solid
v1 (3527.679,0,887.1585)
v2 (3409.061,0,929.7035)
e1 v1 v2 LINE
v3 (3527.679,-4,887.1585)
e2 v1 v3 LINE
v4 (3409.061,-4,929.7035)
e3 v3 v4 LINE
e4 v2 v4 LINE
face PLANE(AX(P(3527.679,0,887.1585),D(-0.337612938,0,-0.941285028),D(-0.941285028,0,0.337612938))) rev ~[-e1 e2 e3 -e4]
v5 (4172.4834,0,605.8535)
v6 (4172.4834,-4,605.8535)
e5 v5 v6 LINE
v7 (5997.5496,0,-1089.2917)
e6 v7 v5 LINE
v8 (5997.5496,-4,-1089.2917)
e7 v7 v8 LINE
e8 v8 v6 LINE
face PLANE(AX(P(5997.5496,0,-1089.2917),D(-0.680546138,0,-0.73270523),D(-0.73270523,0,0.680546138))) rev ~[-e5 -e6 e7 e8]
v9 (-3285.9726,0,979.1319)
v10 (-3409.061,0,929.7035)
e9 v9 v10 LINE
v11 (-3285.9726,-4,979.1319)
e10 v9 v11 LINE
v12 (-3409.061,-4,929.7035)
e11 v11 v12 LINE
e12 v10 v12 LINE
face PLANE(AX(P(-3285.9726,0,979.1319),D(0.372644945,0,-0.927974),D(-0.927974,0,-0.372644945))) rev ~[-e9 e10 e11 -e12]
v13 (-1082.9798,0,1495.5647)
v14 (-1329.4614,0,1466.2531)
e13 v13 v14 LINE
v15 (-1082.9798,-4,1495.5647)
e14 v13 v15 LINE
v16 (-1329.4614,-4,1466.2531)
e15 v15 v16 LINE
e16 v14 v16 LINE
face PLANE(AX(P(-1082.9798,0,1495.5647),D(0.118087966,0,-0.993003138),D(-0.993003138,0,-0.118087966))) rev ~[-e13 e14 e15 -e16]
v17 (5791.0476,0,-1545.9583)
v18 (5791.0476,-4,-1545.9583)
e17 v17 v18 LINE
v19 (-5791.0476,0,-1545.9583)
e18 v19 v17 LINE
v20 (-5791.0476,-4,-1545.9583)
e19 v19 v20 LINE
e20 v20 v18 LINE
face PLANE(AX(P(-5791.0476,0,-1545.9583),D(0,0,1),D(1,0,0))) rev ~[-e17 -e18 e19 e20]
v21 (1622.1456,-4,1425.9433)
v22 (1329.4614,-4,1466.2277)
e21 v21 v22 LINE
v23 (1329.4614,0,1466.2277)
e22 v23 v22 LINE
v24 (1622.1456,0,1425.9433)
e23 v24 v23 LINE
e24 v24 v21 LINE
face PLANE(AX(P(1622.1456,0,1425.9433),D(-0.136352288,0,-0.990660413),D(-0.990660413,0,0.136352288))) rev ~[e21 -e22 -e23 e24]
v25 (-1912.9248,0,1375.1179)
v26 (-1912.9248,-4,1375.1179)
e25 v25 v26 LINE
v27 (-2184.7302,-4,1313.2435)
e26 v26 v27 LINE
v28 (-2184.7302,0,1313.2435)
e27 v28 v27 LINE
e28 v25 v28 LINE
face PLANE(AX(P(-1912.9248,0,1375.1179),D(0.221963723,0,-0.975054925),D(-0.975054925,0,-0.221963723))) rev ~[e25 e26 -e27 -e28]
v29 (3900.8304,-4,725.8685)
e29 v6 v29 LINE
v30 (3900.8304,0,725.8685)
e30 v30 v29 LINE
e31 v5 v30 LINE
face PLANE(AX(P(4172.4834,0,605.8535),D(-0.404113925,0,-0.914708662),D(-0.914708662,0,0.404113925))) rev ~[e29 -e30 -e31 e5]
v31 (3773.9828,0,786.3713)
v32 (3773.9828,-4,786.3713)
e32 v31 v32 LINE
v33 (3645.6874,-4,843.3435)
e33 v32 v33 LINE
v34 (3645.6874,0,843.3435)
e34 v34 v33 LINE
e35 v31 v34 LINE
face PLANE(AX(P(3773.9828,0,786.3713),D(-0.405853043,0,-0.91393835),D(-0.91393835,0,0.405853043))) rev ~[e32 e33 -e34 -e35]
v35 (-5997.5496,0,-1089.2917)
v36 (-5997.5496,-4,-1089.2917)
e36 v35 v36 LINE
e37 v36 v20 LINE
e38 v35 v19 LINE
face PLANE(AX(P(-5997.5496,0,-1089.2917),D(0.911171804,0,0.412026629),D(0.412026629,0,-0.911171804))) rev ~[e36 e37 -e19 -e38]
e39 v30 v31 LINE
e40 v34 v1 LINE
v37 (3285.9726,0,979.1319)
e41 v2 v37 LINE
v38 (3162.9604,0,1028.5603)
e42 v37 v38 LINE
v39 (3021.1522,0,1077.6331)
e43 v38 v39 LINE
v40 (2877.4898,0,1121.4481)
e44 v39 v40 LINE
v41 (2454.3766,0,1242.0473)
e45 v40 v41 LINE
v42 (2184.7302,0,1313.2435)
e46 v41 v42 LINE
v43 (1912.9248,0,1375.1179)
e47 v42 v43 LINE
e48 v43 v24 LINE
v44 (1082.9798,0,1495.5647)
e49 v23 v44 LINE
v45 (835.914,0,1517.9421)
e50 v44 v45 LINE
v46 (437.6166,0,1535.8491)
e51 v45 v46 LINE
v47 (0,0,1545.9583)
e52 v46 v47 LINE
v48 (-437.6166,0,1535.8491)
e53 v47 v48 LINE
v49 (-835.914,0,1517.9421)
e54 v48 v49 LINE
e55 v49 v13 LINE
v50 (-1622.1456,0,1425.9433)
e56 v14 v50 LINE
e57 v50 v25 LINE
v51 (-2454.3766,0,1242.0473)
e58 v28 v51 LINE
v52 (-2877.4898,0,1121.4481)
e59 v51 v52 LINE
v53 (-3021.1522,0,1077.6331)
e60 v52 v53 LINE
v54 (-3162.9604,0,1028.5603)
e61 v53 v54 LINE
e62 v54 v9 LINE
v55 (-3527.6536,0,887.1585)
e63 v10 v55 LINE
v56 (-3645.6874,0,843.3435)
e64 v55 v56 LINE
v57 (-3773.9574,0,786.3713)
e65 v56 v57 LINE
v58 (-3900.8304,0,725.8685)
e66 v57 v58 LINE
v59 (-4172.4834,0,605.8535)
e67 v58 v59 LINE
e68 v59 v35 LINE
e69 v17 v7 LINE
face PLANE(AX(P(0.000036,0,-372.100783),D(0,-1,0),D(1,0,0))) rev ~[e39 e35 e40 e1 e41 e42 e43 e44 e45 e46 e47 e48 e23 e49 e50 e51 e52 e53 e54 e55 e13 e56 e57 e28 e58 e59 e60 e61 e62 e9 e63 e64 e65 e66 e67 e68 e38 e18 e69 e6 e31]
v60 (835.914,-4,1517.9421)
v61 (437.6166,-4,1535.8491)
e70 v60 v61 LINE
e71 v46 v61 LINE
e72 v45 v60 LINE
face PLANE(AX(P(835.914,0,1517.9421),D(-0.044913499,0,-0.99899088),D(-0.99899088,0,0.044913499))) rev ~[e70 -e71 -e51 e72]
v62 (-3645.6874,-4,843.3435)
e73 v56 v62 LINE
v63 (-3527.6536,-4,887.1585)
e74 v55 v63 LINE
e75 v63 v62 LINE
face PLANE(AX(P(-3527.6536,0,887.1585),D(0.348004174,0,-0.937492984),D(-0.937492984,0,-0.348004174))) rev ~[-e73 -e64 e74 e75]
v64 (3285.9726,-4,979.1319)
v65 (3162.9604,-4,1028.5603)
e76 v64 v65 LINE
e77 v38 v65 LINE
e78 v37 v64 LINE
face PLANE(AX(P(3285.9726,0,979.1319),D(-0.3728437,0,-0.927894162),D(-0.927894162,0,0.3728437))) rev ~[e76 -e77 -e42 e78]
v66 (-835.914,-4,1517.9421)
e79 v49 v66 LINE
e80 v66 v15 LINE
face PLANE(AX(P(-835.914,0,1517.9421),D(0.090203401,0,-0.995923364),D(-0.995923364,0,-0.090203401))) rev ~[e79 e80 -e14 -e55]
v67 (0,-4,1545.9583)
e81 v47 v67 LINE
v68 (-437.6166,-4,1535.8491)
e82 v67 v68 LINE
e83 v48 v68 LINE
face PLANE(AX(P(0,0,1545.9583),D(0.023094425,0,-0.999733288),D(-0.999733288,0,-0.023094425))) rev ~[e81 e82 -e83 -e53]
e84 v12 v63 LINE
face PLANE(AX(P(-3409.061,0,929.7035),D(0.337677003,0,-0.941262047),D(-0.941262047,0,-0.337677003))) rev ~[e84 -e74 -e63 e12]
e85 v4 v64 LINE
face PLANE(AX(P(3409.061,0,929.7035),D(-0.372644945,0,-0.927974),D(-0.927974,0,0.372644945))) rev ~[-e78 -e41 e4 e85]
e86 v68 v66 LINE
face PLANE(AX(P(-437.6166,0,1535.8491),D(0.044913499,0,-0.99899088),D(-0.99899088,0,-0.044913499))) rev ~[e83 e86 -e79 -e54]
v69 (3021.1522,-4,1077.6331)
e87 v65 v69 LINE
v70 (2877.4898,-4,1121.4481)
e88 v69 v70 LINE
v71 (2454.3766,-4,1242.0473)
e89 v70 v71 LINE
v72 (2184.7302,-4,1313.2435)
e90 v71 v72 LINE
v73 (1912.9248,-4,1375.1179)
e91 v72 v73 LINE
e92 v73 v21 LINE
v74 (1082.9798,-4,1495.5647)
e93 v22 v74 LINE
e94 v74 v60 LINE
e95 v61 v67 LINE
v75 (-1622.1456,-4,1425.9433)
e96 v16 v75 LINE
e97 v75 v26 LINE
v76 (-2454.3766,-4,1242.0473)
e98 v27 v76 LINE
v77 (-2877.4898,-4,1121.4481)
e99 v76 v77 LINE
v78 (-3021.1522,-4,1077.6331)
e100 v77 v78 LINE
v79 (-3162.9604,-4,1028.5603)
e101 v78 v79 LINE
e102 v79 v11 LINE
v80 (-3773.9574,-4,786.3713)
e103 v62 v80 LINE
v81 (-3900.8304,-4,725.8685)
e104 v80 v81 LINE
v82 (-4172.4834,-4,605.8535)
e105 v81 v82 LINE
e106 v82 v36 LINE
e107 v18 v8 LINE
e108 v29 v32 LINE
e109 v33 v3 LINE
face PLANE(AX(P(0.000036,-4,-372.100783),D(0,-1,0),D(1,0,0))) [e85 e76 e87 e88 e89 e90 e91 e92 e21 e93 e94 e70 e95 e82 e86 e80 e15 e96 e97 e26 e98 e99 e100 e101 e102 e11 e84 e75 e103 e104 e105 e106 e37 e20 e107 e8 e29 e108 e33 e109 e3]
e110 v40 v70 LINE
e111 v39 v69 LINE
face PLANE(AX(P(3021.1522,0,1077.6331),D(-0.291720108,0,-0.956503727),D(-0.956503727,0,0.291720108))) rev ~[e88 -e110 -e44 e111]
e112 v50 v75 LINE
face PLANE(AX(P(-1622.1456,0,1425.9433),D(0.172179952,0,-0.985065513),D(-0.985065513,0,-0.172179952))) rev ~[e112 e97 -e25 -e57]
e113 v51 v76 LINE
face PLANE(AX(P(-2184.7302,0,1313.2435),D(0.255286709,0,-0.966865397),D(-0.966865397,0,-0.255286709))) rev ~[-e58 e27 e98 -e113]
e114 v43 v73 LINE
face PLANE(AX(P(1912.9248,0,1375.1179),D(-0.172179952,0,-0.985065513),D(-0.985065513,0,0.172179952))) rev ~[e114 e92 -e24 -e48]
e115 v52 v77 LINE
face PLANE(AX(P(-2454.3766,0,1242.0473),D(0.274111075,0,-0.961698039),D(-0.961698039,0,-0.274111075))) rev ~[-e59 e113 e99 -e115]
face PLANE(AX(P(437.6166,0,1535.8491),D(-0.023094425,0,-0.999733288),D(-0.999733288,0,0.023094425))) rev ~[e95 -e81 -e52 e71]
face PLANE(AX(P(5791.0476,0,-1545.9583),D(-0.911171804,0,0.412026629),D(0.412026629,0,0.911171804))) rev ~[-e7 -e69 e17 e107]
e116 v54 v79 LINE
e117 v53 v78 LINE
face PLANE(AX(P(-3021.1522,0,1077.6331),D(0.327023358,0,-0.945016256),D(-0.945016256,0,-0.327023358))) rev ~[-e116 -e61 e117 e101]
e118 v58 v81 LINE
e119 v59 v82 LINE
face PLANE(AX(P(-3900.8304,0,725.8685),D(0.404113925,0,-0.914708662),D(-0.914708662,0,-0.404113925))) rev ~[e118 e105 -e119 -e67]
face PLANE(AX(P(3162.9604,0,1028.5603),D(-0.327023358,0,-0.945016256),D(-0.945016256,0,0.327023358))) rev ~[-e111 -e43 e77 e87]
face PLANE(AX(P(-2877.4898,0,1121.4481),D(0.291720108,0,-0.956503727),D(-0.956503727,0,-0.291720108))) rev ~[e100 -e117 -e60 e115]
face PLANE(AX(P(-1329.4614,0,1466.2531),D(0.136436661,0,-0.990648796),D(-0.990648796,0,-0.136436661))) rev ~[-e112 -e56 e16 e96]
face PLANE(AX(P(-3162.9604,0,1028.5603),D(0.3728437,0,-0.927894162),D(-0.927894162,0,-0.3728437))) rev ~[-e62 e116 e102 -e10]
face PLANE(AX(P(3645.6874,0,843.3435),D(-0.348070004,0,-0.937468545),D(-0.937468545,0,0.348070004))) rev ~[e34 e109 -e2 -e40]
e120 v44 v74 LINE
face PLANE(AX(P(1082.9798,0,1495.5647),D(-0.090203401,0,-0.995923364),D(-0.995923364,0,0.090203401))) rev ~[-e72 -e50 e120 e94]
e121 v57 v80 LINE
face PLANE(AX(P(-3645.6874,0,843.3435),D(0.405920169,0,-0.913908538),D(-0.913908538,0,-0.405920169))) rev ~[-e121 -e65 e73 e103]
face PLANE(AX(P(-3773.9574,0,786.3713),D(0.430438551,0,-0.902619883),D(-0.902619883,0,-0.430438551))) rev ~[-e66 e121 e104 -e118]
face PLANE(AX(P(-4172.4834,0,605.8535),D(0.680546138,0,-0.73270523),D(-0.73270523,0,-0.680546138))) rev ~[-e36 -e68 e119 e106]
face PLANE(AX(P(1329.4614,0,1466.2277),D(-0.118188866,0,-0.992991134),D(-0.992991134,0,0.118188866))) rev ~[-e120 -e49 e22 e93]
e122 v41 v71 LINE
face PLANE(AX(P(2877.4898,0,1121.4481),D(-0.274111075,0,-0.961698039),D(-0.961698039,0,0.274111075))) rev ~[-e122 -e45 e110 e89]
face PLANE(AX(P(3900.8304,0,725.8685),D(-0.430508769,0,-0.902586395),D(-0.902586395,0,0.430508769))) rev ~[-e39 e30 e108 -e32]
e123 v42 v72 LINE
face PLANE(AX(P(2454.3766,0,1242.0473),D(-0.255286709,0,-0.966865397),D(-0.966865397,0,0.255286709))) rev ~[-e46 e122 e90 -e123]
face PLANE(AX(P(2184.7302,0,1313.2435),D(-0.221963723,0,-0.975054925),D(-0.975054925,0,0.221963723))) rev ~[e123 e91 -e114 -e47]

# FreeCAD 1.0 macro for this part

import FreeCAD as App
import Part
import Sketcher


def add_polygon(sketch, points):
    """Adds a closed chain of lines whose ends are joined by coincident constraints."""
    first, n = sketch.GeometryCount, len(points)
    for a, b in zip(points, points[1:] + points[:1]):
        sketch.addGeometry(Part.LineSegment(App.Vector(*a, 0), App.Vector(*b, 0)), False)
    for i in range(n):
        sketch.addConstraint(Sketcher.Constraint("Coincident", first + i, 2, first + (i + 1) % n, 1))

doc = App.newDocument("Part")
body = doc.addObject("PartDesign::Body", "Body")

# Sketch on XZ plane
sketch1 = doc.addObject("Sketcher::SketchObject", "Sketch")
body.addObject(sketch1)
sketch1.AttachmentSupport = (doc.XZ_Plane, [""])
sketch1.MapMode = "FlatFace"
add_polygon(sketch1, [(438, 1536), (0, 1546), (-438, 1536), (-836, 1518), (-1083, 1496), (-1329, 1466), (-1622, 1426), (-1913, 1375), (-2185, 1313), (-2454, 1242), (-2877, 1121), (-3021, 1078), (-3163, 1029), (-3286, 979), (-3409, 930), (-3528, 887), (-3646, 843), (-3774, 786), (-3901, 726), (-4172, 606), (-5998, -1089), (-5791, -1546), (5791, -1546), (5998, -1089), (4172, 606), (3901, 726), (3774, 786), (3646, 843), (3528, 887), (3409, 930), (3286, 979), (3163, 1029), (3021, 1078), (2877, 1121), (2454, 1242), (2185, 1313), (1913, 1375), (1622, 1426), (1329, 1466), (1083, 1496), (836, 1518)])  # lines 0-40
sketch1.addConstraint(Sketcher.Constraint("Horizontal", 21))
sketch1.addConstraint(Sketcher.Constraint("Symmetric", 19, 2, 22, 2, -2))
sketch1.addConstraint(Sketcher.Constraint("Symmetric", 18, 2, 23, 2, -2))
sketch1.addConstraint(Sketcher.Constraint("Symmetric", 17, 2, 24, 2, -2))
sketch1.addConstraint(Sketcher.Constraint("Symmetric", 15, 2, 26, 2, -2))
sketch1.addConstraint(Sketcher.Constraint("Symmetric", 13, 2, 28, 2, -2))
sketch1.addConstraint(Sketcher.Constraint("Symmetric", 12, 2, 29, 2, -2))
sketch1.addConstraint(Sketcher.Constraint("Symmetric", 11, 2, 30, 2, -2))
sketch1.addConstraint(Sketcher.Constraint("Symmetric", 10, 2, 31, 2, -2))
sketch1.addConstraint(Sketcher.Constraint("Symmetric", 9, 2, 32, 2, -2))
sketch1.addConstraint(Sketcher.Constraint("Symmetric", 8, 2, 33, 2, -2))
sketch1.addConstraint(Sketcher.Constraint("Symmetric", 7, 2, 34, 2, -2))
sketch1.addConstraint(Sketcher.Constraint("Symmetric", 6, 2, 35, 2, -2))
sketch1.addConstraint(Sketcher.Constraint("Symmetric", 5, 2, 36, 2, -2))
sketch1.addConstraint(Sketcher.Constraint("Symmetric", 3, 2, 38, 2, -2))
sketch1.addConstraint(Sketcher.Constraint("Symmetric", 2, 2, 39, 2, -2))
sketch1.addConstraint(Sketcher.Constraint("Symmetric", 1, 2, 40, 2, -2))
sketch1.addConstraint(Sketcher.Constraint("PointOnObject", 0, 2, -2))
sketch1.addConstraint(Sketcher.Constraint("Horizontal", 16, 2, 25, 2))
sketch1.addConstraint(Sketcher.Constraint("Horizontal", 14, 2, 27, 2))
sketch1.addConstraint(Sketcher.Constraint("Equal", 20, 22))
sketch1.addConstraint(Sketcher.Constraint("DistanceX", 1, 2, 23, 2, 4610.1))
sketch1.addConstraint(Sketcher.Constraint("DistanceY", 15, 2, 13, 2, 86.36))
sketch1.addConstraint(Sketcher.Constraint("DistanceX", 16, 2, 15, 2, 128.27))
sketch1.addConstraint(Sketcher.Constraint("DistanceY", 17, 2, 14, 2, 161.29))
sketch1.addConstraint(Sketcher.Constraint("DistanceY", 18, 2, 15, 2, 237.49))
sketch1.addConstraint(Sketcher.Constraint("DistanceY", 22, 2, 0, 2, 2635.25))
sketch1.addConstraint(Sketcher.Constraint("DistanceX", 21, 1, 21, 2, 11582.0952))
sketch1.addConstraint(Sketcher.Constraint("DistanceX", 2, 2, -1, 1, 835.914))
sketch1.addConstraint(Sketcher.Constraint("DistanceX", 13, 2, -1, 1, 3409.061))
sketch1.addConstraint(Sketcher.Constraint("DistanceX", -1, 1, 27, 2, 3527.679))
sketch1.addConstraint(Sketcher.Constraint("DistanceY", 2, 2, 1, 2, 17.907))
sketch1.addConstraint(Sketcher.Constraint("DistanceY", 4, 2, 2, 2, 51.689))
sketch1.addConstraint(Sketcher.Constraint("DistanceX", 5, 2, 1, 2, 1184.529))
sketch1.addConstraint(Sketcher.Constraint("DistanceY", 5, 2, 0, 2, 120.015))
sketch1.addConstraint(Sketcher.Constraint("DistanceX", 6, 2, 3, 2, 829.945))
sketch1.addConstraint(Sketcher.Constraint("DistanceX", 8, 2, 5, 2, 832.231))
sketch1.addConstraint(Sketcher.Constraint("DistanceY", 8, 2, 5, 2, 183.896))
sketch1.addConstraint(Sketcher.Constraint("DistanceX", 9, 2, 6, 2, 964.565))
sketch1.addConstraint(Sketcher.Constraint("DistanceY", 9, 2, 4, 2, 344.805))
sketch1.addConstraint(Sketcher.Constraint("DistanceY", 10, 2, 9, 2, 43.815))
sketch1.addConstraint(Sketcher.Constraint("DistanceX", 10, 2, 7, 2, 836.422))
sketch1.addConstraint(Sketcher.Constraint("DistanceY", 11, 2, 8, 2, 213.487))
sketch1.addConstraint(Sketcher.Constraint("DistanceX", 12, 2, 8, 2, 831.596))
sketch1.addConstraint(Sketcher.Constraint("DistanceY", 14, 2, 13, 2, 42.545))
sketch1.addConstraint(Sketcher.Constraint("DistanceX", 14, 2, 12, 2, 241.681))
sketch1.addConstraint(Sketcher.Constraint("DistanceX", 15, 2, 11, 2, 482.727))
sketch1.addConstraint(Sketcher.Constraint("DistanceY", 16, 2, 11, 2, 242.189))
sketch1.addConstraint(Sketcher.Constraint("DistanceX", 17, 2, 16, 2, 126.873))
sketch1.addConstraint(Sketcher.Constraint("DistanceX", 18, 2, 17, 2, 271.653))
sketch1.addConstraint(Sketcher.Constraint("DistanceX", 19, 2, 14, 2, 2469.896))
sketch1.addConstraint(Sketcher.Constraint("DistanceX", 19, 2, 20, 2, 206.502))
sketch1.addConstraint(Sketcher.Constraint("DistanceY", 21, 2, 3, 2, 3041.523))
sketch1.addConstraint(Sketcher.Constraint("DistanceX", 4, 2, 21, 2, 7120.509))
sketch1.addConstraint(Sketcher.Constraint("DistanceY", 37, 2, 38, 2, 29.337))
sketch1.addConstraint(Sketcher.Constraint("DistanceY", -1, 1, 0, 2, 1545.9583))
sketch1.addConstraint(Sketcher.Constraint("DistanceY", -1, 1, 1, 2, 1535.8491))
sketch1.addConstraint(Sketcher.Constraint("DistanceX", 3, 2, -1, 1, 1082.9798))
sketch1.addConstraint(Sketcher.Constraint("DistanceY", -1, 1, 3, 2, 1495.5647))
sketch1.addConstraint(Sketcher.Constraint("DistanceY", -1, 1, 6, 2, 1375.1179))
sketch1.addConstraint(Sketcher.Constraint("DistanceX", 7, 2, -1, 1, 2184.7302))
sketch1.addConstraint(Sketcher.Constraint("DistanceY", -1, 1, 7, 2, 1313.2435))
sketch1.addConstraint(Sketcher.Constraint("DistanceY", -1, 1, 12, 2, 979.1319))
sketch1.addConstraint(Sketcher.Constraint("DistanceY", -1, 1, 13, 2, 929.7035))
sketch1.addConstraint(Sketcher.Constraint("DistanceX", -1, 1, 25, 2, 3773.9828))
sketch1.addConstraint(Sketcher.Constraint("DistanceX", -1, 1, 37, 2, 1329.4614))
pad1 = doc.addObject("PartDesign::Pad", "Pad")
body.addObject(pad1)
pad1.Profile = sketch1
pad1.Length = 4

doc.recompute()
